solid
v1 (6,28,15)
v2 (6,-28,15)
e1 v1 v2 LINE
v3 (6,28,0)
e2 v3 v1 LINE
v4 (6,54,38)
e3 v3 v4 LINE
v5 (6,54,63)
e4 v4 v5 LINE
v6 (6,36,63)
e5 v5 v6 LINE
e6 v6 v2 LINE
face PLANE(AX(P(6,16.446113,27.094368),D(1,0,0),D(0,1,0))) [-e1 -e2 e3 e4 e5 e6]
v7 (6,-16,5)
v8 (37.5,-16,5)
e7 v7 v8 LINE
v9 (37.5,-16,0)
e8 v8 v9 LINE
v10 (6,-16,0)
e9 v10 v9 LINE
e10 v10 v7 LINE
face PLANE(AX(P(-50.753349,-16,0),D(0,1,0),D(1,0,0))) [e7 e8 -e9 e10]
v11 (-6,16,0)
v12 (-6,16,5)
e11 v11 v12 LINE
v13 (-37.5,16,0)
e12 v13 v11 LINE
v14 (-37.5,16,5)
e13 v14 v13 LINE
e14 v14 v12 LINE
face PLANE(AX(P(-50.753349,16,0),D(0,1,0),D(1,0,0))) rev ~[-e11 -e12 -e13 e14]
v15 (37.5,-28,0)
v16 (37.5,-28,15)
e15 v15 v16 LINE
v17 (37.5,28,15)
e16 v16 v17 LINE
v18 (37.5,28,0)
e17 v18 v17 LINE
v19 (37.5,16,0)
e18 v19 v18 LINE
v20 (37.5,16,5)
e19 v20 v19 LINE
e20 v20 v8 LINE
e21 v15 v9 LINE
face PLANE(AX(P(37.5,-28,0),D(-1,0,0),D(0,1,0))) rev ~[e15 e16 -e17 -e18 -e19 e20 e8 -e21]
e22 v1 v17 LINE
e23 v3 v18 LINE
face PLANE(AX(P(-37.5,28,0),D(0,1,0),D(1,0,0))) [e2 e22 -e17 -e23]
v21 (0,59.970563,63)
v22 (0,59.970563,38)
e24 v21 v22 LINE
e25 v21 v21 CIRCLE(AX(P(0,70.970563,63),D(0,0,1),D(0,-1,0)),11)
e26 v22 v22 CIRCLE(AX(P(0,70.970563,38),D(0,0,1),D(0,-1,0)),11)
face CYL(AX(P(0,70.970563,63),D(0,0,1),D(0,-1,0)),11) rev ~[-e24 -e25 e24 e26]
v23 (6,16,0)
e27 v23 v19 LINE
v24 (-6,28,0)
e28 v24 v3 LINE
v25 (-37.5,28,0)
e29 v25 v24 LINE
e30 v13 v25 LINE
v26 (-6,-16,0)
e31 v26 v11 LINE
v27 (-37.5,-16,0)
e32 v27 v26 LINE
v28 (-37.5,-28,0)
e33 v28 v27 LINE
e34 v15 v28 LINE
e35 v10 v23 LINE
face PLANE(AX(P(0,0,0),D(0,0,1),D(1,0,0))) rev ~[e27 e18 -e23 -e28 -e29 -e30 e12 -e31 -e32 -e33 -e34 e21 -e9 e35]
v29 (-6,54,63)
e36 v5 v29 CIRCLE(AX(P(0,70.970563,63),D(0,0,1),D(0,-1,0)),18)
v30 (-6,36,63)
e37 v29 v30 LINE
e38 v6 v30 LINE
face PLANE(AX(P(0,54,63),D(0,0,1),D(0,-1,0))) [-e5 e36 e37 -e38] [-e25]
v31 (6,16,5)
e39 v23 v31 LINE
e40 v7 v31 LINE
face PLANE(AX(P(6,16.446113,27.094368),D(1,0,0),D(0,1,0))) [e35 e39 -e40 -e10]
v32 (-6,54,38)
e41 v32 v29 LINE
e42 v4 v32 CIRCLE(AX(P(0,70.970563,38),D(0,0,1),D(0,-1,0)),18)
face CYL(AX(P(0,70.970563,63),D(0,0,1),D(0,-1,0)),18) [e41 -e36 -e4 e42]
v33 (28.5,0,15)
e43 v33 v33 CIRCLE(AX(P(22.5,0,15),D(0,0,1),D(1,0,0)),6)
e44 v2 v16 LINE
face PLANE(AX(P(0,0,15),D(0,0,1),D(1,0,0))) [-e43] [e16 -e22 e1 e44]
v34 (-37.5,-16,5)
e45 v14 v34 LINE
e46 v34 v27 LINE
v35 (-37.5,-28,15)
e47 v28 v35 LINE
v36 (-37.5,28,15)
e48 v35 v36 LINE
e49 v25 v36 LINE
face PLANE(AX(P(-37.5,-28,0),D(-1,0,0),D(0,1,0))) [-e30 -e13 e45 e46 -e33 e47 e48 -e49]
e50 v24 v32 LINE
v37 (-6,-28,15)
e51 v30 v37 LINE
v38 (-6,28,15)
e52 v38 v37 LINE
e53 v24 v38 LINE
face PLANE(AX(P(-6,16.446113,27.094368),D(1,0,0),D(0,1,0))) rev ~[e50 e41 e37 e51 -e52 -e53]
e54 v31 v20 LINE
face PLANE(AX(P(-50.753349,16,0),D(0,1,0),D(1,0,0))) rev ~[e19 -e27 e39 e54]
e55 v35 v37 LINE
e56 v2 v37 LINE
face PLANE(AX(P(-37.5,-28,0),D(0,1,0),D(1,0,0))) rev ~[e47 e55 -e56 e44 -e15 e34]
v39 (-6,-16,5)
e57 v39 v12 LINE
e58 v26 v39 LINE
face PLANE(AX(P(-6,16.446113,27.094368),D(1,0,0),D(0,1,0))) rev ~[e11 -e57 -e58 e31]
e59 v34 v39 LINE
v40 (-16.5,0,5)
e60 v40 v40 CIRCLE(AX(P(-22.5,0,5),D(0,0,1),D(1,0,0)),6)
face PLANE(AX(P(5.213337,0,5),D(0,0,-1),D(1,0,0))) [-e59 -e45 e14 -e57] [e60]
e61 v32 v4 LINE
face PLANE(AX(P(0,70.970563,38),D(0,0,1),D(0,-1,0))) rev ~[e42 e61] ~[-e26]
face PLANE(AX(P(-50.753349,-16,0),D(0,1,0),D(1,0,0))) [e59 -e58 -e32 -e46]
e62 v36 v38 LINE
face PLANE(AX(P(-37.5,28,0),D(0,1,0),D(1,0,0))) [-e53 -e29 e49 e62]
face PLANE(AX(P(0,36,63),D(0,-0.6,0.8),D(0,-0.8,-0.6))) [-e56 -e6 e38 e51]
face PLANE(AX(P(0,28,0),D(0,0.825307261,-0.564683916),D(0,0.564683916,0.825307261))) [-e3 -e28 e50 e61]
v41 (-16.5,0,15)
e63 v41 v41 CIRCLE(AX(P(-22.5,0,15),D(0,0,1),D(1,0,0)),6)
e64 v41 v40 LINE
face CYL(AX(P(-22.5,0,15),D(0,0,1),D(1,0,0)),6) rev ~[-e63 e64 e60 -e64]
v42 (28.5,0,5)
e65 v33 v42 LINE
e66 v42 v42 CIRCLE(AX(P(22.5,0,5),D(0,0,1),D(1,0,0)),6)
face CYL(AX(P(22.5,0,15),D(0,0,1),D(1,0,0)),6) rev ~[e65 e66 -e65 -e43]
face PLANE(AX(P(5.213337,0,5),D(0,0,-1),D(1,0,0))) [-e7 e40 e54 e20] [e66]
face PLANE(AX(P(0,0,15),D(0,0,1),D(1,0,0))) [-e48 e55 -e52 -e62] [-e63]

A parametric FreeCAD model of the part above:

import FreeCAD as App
import Part
import Sketcher

V = App.Vector

doc = App.newDocument("Part")
body = doc.addObject("PartDesign::Body", "Body")

sketch1 = doc.addObject("Sketcher::SketchObject", "Sketch")
body.addObject(sketch1)
sketch1.AttachmentSupport = (doc.XY_Plane, [""])
sketch1.MapMode = "FlatFace"
sketch1.addGeometry(Part.LineSegment(V(-38, 28, 0), V(-38, -28, 0)), False)
sketch1.addGeometry(Part.LineSegment(V(-38, -28, 0), V(38, -28, 0)), False)
sketch1.addGeometry(Part.LineSegment(V(38, -28, 0), V(38, 28, 0)), False)
sketch1.addGeometry(Part.LineSegment(V(38, 28, 0), V(-38, 28, 0)), False)
sketch1.addConstraint(Sketcher.Constraint("Coincident", 0, 2, 1, 1))
sketch1.addConstraint(Sketcher.Constraint("Coincident", 1, 2, 2, 1))
sketch1.addConstraint(Sketcher.Constraint("Coincident", 2, 2, 3, 1))
sketch1.addConstraint(Sketcher.Constraint("Coincident", 3, 2, 0, 1))
sketch1.addConstraint(Sketcher.Constraint("Vertical", 0))
sketch1.addConstraint(Sketcher.Constraint("Horizontal", 1))
sketch1.addConstraint(Sketcher.Constraint("Vertical", 2))
sketch1.addConstraint(Sketcher.Constraint("Horizontal", 3))
sketch1.addConstraint(Sketcher.Constraint("Symmetric", 0, 2, 2, 2, -1, 1))
sketch1.addConstraint(Sketcher.Constraint("DistanceX", 1, 1, 1, 2, 75.0))
sketch1.addConstraint(Sketcher.Constraint("DistanceY", 0, 2, 0, 1, 56.0))
pad1 = doc.addObject("PartDesign::Pad", "Pad")
body.addObject(pad1)
pad1.Profile = sketch1
pad1.Length = 15

sketch2 = doc.addObject("Sketcher::SketchObject", "Sketch001")
body.addObject(sketch2)
sketch2.AttachmentSupport = (doc.XY_Plane, [""])
sketch2.MapMode = "FlatFace"
sketch2.AttachmentOffset = App.Placement(V(0, 0, 15), App.Rotation())
sketch2.addGeometry(Part.Circle(V(-22, 0, 0), V(0, 0, 1), 6), False)
sketch2.addGeometry(Part.Circle(V(22, 0, 0), V(0, 0, 1), 6), False)
sketch2.addConstraint(Sketcher.Constraint("Equal", 0, 1))
sketch2.addConstraint(Sketcher.Constraint("Symmetric", 0, 3, 1, 3, -1, 1))
sketch2.addConstraint(Sketcher.Constraint("PointOnObject", 0, 3, -1))
sketch2.addConstraint(Sketcher.Constraint("Diameter", 0, 12.0))
sketch2.addConstraint(Sketcher.Constraint("DistanceX", 0, 3, 1, 3, 45.0))
pocket1 = doc.addObject("PartDesign::Pocket", "Pocket")
body.addObject(pocket1)
pocket1.Profile = sketch2
pocket1.Type = "ThroughAll"

sketch3 = doc.addObject("Sketcher::SketchObject", "Sketch002")
body.addObject(sketch3)
sketch3.AttachmentSupport = (doc.XY_Plane, [""])
sketch3.MapMode = "FlatFace"
sketch3.addGeometry(Part.LineSegment(V(-51, -16, 0), V(-51, 16, 0)), False)
sketch3.addGeometry(Part.LineSegment(V(-51, 16, 0), V(61, 16, 0)), False)
sketch3.addGeometry(Part.LineSegment(V(61, 16, 0), V(61, -16, 0)), False)
sketch3.addGeometry(Part.LineSegment(V(61, -16, 0), V(-51, -16, 0)), False)
sketch3.addConstraint(Sketcher.Constraint("Coincident", 0, 2, 1, 1))
sketch3.addConstraint(Sketcher.Constraint("Coincident", 1, 2, 2, 1))
sketch3.addConstraint(Sketcher.Constraint("Coincident", 2, 2, 3, 1))
sketch3.addConstraint(Sketcher.Constraint("Coincident", 3, 2, 0, 1))
sketch3.addConstraint(Sketcher.Constraint("Vertical", 0))
sketch3.addConstraint(Sketcher.Constraint("Horizontal", 1))
sketch3.addConstraint(Sketcher.Constraint("Vertical", 2))
sketch3.addConstraint(Sketcher.Constraint("Horizontal", 3))
sketch3.addConstraint(Sketcher.Constraint("DistanceY", 0, 1, 0, 2, 32.0))
sketch3.addConstraint(Sketcher.Constraint("DistanceY", -1, 1, 0, 2, 16.0))
sketch3.addConstraint(Sketcher.Constraint("DistanceX", 1, 1, 1, 2, 111.933372))
sketch3.addConstraint(Sketcher.Constraint("DistanceX", 0, 2, -1, 1, 50.753349))
pocket2 = doc.addObject("PartDesign::Pocket", "Pocket001")
body.addObject(pocket2)
pocket2.Profile = sketch3
pocket2.Length = 5
pocket2.Reversed = True
body2 = doc.addObject("PartDesign::Body", "Body001")

sketch4 = doc.addObject("Sketcher::SketchObject", "Sketch003")
body2.addObject(sketch4)
sketch4.AttachmentSupport = (doc.getObject("YZ_Plane001"), [""])
sketch4.MapMode = "FlatFace"
sketch4.addGeometry(Part.LineSegment(V(-28, 0, 0), V(28, 0, 0)), False)
sketch4.addGeometry(Part.LineSegment(V(28, 0, 0), V(54, 38, 0)), False)
sketch4.addGeometry(Part.LineSegment(V(54, 38, 0), V(54, 63, 0)), False)
sketch4.addGeometry(Part.LineSegment(V(54, 63, 0), V(36, 63, 0)), False)
sketch4.addGeometry(Part.LineSegment(V(36, 63, 0), V(-28, 15, 0)), False)
sketch4.addGeometry(Part.LineSegment(V(-28, 15, 0), V(-28, 0, 0)), False)
sketch4.addConstraint(Sketcher.Constraint("Coincident", 0, 2, 1, 1))
sketch4.addConstraint(Sketcher.Constraint("Coincident", 1, 2, 2, 1))
sketch4.addConstraint(Sketcher.Constraint("Coincident", 2, 2, 3, 1))
sketch4.addConstraint(Sketcher.Constraint("Coincident", 3, 2, 4, 1))
sketch4.addConstraint(Sketcher.Constraint("Coincident", 4, 2, 5, 1))
sketch4.addConstraint(Sketcher.Constraint("Coincident", 5, 2, 0, 1))
sketch4.addConstraint(Sketcher.Constraint("Horizontal", 0))
sketch4.addConstraint(Sketcher.Constraint("Vertical", 2))
sketch4.addConstraint(Sketcher.Constraint("Horizontal", 3))
sketch4.addConstraint(Sketcher.Constraint("Vertical", 5))
sketch4.addConstraint(Sketcher.Constraint("Symmetric", 0, 2, 5, 2, -1, 1))
sketch4.addConstraint(Sketcher.Constraint("DistanceX", 0, 1, 0, 2, 56.0))
sketch4.addConstraint(Sketcher.Constraint("DistanceX", 3, 2, 3, 1, 18.0))
sketch4.addConstraint(Sketcher.Constraint("DistanceY", 2, 1, 2, 2, 25.0))
sketch4.addConstraint(Sketcher.Constraint("DistanceY", 5, 2, 5, 1, 15.0))
sketch4.addConstraint(Sketcher.Constraint("Distance", 4, 80.0))
sketch4.addConstraint(Sketcher.Constraint("DistanceX", -1, 1, 1, 2, 54.0))
pad2 = doc.addObject("PartDesign::Pad", "Pad001")
body2.addObject(pad2)
pad2.Profile = sketch4
pad2.Length = 12
pad2.Midplane = True

sketch5 = doc.addObject("Sketcher::SketchObject", "Sketch004")
body2.addObject(sketch5)
sketch5.AttachmentSupport = (doc.getObject("XY_Plane001"), [""])
sketch5.MapMode = "FlatFace"
sketch5.AttachmentOffset = App.Placement(V(0, 0, 63), App.Rotation())
sketch5.addGeometry(Part.Circle(V(0, 71, 0), V(0, 0, 1), 18), False)
sketch5.addConstraint(Sketcher.Constraint("PointOnObject", 0, 3, -2))
sketch5.addConstraint(Sketcher.Constraint("Diameter", 0, 36.0))
sketch5.addConstraint(Sketcher.Constraint("DistanceY", -1, 1, 0, 3, 70.970563))
pad3 = doc.addObject("PartDesign::Pad", "Pad002")
body2.addObject(pad3)
pad3.Profile = sketch5
pad3.Length = 25
pad3.Reversed = True

sketch6 = doc.addObject("Sketcher::SketchObject", "Sketch005")
body2.addObject(sketch6)
sketch6.AttachmentSupport = (doc.getObject("XY_Plane001"), [""])
sketch6.MapMode = "FlatFace"
sketch6.AttachmentOffset = App.Placement(V(0, 0, 63), App.Rotation())
sketch6.addGeometry(Part.Circle(V(0, 71, 0), V(0, 0, 1), 11), False)
sketch6.addConstraint(Sketcher.Constraint("PointOnObject", 0, 3, -2))
sketch6.addConstraint(Sketcher.Constraint("Diameter", 0, 22.0))
sketch6.addConstraint(Sketcher.Constraint("DistanceY", -1, 1, 0, 3, 70.970563))
pocket3 = doc.addObject("PartDesign::Pocket", "Pocket002")
body2.addObject(pocket3)
pocket3.Profile = sketch6
pocket3.Type = "ThroughAll"
doc.recompute()

boolean = doc.addObject("PartDesign::Boolean", "Boolean")
body2.addObject(boolean)
boolean.Type = "Fuse"
boolean.addObjects([body])

doc.recompute()
